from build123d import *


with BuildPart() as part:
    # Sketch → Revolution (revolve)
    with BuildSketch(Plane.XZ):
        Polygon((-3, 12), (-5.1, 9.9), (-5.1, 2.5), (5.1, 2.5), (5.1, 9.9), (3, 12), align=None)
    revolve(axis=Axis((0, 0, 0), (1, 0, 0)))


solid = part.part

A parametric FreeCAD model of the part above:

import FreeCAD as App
import Part
import Sketcher

V = App.Vector
Q = App.Units.Quantity

doc = App.newDocument("Part")
body = doc.addObject("PartDesign::Body", "Body")

# Sketch on XZ plane
sketch1 = body.newObject("Sketcher::SketchObject", "Sketch")
sketch1.AttachmentSupport = (doc.getObject("XZ_Plane"), [""])
sketch1.MapMode = "FlatFace"
sketch1.addGeometry(Part.LineSegment(V(-3, 12, 0), V(-5.1, 9.9, 0)), False)
sketch1.addGeometry(Part.LineSegment(V(-5.1, 9.9, 0), V(-5.1, 2.5, 0)), False)
sketch1.addGeometry(Part.LineSegment(V(-5.1, 2.5, 0), V(5.1, 2.5, 0)), False)
sketch1.addGeometry(Part.LineSegment(V(5.1, 2.5, 0), V(5.1, 9.9, 0)), False)
sketch1.addGeometry(Part.LineSegment(V(5.1, 9.9, 0), V(3, 12, 0)), False)
sketch1.addGeometry(Part.LineSegment(V(3, 12, 0), V(-3, 12, 0)), False)
sketch1.addConstraint(Sketcher.Constraint("Coincident", 0, 2, 1, 1))
sketch1.addConstraint(Sketcher.Constraint("Coincident", 1, 2, 2, 1))
sketch1.addConstraint(Sketcher.Constraint("Coincident", 2, 2, 3, 1))
sketch1.addConstraint(Sketcher.Constraint("Coincident", 3, 2, 4, 1))
sketch1.addConstraint(Sketcher.Constraint("Coincident", 4, 2, 5, 1))
sketch1.addConstraint(Sketcher.Constraint("Coincident", 5, 2, 0, 1))
sketch1.addConstraint(Sketcher.Constraint("Vertical", 1))
sketch1.addConstraint(Sketcher.Constraint("Horizontal", 2))
sketch1.addConstraint(Sketcher.Constraint("Vertical", 3))
sketch1.addConstraint(Sketcher.Constraint("Horizontal", 5))
sketch1.addConstraint(Sketcher.Constraint("Symmetric", 0, 2, 3, 2, -2))
sketch1.addConstraint(Sketcher.Constraint("Perpendicular", 0, 4))
sketch1.addConstraint(Sketcher.Constraint("Equal", 0, 4))
sketch1.addConstraint(Sketcher.Constraint("DistanceX", 5, 2, 5, 1, Q("6 mm")))
sketch1.addConstraint(Sketcher.Constraint("DistanceX", 2, 1, 2, 2, Q("10.2 mm")))
sketch1.addConstraint(Sketcher.Constraint("DistanceY", 1, 2, 1, 1, Q("7.4 mm")))
sketch1.addConstraint(Sketcher.Constraint("DistanceY", -1, 1, 4, 2, Q("12 mm")))
revolution = body.newObject("PartDesign::Revolution", "Revolution")
revolution.Profile = sketch1
revolution.ReferenceAxis = (sketch1, ["H_Axis"])
revolution.Angle = 360

doc.recompute()
